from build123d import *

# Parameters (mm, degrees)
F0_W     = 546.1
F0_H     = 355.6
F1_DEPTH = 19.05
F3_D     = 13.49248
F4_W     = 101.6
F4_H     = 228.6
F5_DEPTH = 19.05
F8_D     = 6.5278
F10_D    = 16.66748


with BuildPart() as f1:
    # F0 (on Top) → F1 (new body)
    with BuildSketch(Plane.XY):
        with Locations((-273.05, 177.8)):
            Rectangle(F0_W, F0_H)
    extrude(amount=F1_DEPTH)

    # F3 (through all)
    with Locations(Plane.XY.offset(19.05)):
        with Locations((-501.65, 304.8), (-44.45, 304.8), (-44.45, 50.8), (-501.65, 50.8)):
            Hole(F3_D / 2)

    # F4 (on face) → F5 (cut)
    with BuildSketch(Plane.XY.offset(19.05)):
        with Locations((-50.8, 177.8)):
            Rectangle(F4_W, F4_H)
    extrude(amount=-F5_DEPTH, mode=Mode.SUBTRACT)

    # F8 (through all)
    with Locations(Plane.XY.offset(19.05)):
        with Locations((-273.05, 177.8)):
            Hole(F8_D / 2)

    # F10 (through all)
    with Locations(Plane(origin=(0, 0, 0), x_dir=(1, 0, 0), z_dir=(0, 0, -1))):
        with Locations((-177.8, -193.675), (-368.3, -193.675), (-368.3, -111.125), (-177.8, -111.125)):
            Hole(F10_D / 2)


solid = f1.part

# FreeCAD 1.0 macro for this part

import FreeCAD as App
import Part
import Sketcher
Q = App.Units.Quantity

doc = App.newDocument("Part")
body = doc.addObject("PartDesign::Body", "Body")

# Sketch on XY plane
sketch1 = body.newObject("Sketcher::SketchObject", "Sketch")
sketch1.AttachmentSupport = (doc.getObject("XY_Plane"), [""])
sketch1.MapMode = "FlatFace"
sketch1.addGeometry([
    Part.LineSegment(App.Vector(-546, 356, 0), App.Vector(-546, 0, 0)),
    Part.LineSegment(App.Vector(-546, 0, 0), App.Vector(0, 0, 0)),
    Part.LineSegment(App.Vector(0, 0, 0), App.Vector(0, 356, 0)),
    Part.LineSegment(App.Vector(0, 356, 0), App.Vector(-546, 356, 0)),
], False)
sketch1.addConstraint([
    Sketcher.Constraint("Coincident", 0, 2, 1, 1),
    Sketcher.Constraint("Coincident", 1, 2, 2, 1),
    Sketcher.Constraint("Coincident", 2, 2, 3, 1),
    Sketcher.Constraint("Coincident", 3, 2, 0, 1),
    Sketcher.Constraint("Vertical", 0),
    Sketcher.Constraint("Horizontal", 1),
    Sketcher.Constraint("Vertical", 2),
    Sketcher.Constraint("Horizontal", 3),
    Sketcher.Constraint("Coincident", 1, 2, -1, 1),
    Sketcher.Constraint("DistanceY", 0, 2, 0, 1, Q("14 in")),
    Sketcher.Constraint("DistanceX", 1, 1, 1, 2, Q("21.5 in")),
])
pad1 = body.newObject("PartDesign::Pad", "Pad")
pad1.Profile = sketch1
pad1.Length = Q("0.75 in")

# Sketch on XY plane
sketch2 = body.newObject("Sketcher::SketchObject", "Sketch001")
sketch2.AttachmentSupport = (doc.getObject("XY_Plane"), [""])
sketch2.MapMode = "FlatFace"
sketch2.AttachmentOffset = App.Placement(App.Vector(0, 0, 0.75 * 25.4), App.Rotation())
sketch2.addGeometry([
    Part.Circle(App.Vector(-502, 305, 0), App.Vector(0, 0, 1), 7),
    Part.Circle(App.Vector(-44, 305, 0), App.Vector(0, 0, 1), 7),
    Part.Circle(App.Vector(-44, 51, 0), App.Vector(0, 0, 1), 7),
    Part.Circle(App.Vector(-502, 51, 0), App.Vector(0, 0, 1), 7),
], False)
sketch2.addConstraint([
    Sketcher.Constraint("Equal", 0, 1),
    Sketcher.Constraint("Equal", 1, 2),
    Sketcher.Constraint("Equal", 2, 3),
    Sketcher.Constraint("Horizontal", 0, 3, 1, 3),
    Sketcher.Constraint("Horizontal", 2, 3, 3, 3),
    Sketcher.Constraint("Vertical", 1, 3, 2, 3),
    Sketcher.Constraint("Vertical", 0, 3, 3, 3),
    Sketcher.Constraint("DistanceY", -1, 1, 0, 3, Q("12 in")),
    Sketcher.Constraint("DistanceY", -1, 1, 2, 3, Q("2 in")),
    Sketcher.Constraint("DistanceX", 0, 3, 1, 3, Q("18 in")),
    Sketcher.Constraint("Diameter", 0, Q("0.5312 in")),
    Sketcher.Constraint("DistanceX", 0, 3, -1, 1, Q("19.75 in")),
])
doc.recompute()
hole = body.newObject("PartDesign::Hole", "Hole")
hole.Profile = sketch2
hole.ThreadType = "None"
hole.Diameter = Q("0.5312 in")
hole.DepthType = "ThroughAll"

# Sketch on XY plane
sketch3 = body.newObject("Sketcher::SketchObject", "Sketch002")
sketch3.AttachmentSupport = (doc.getObject("XY_Plane"), [""])
sketch3.MapMode = "FlatFace"
sketch3.AttachmentOffset = App.Placement(App.Vector(0, 0, 0.75 * 25.4), App.Rotation())
sketch3.addGeometry([
    Part.LineSegment(App.Vector(-102, 292, 0), App.Vector(-102, 64, 0)),
    Part.LineSegment(App.Vector(-102, 64, 0), App.Vector(0, 64, 0)),
    Part.LineSegment(App.Vector(0, 64, 0), App.Vector(0, 292, 0)),
    Part.LineSegment(App.Vector(0, 292, 0), App.Vector(-102, 292, 0)),
], False)
sketch3.addConstraint([
    Sketcher.Constraint("Coincident", 0, 2, 1, 1),
    Sketcher.Constraint("Coincident", 1, 2, 2, 1),
    Sketcher.Constraint("Coincident", 2, 2, 3, 1),
    Sketcher.Constraint("Coincident", 3, 2, 0, 1),
    Sketcher.Constraint("Vertical", 0),
    Sketcher.Constraint("Horizontal", 1),
    Sketcher.Constraint("Vertical", 2),
    Sketcher.Constraint("Horizontal", 3),
    Sketcher.Constraint("PointOnObject", 1, 2, -2),
    Sketcher.Constraint("DistanceX", 1, 1, 1, 2, Q("4 in")),
    Sketcher.Constraint("DistanceY", 0, 2, 0, 1, Q("9 in")),
    Sketcher.Constraint("DistanceY", -1, 1, 0, 2, Q("2.5 in")),
])
pocket1 = body.newObject("PartDesign::Pocket", "Pocket")
pocket1.Profile = sketch3
pocket1.Length = Q("0.75 in")

# Sketch on XY plane
sketch4 = body.newObject("Sketcher::SketchObject", "Sketch003")
sketch4.AttachmentSupport = (doc.getObject("XY_Plane"), [""])
sketch4.MapMode = "FlatFace"
sketch4.AttachmentOffset = App.Placement(App.Vector(0, 0, 0.75 * 25.4), App.Rotation())
sketch4.addGeometry(Part.Circle(App.Vector(-273.1, 177.8, 0), App.Vector(0, 0, 1), 3.3), False)
sketch4.addConstraint([
    Sketcher.Constraint("Diameter", 0, Q("0.257 in")),
    Sketcher.Constraint("DistanceY", -1, 1, 0, 3, Q("7 in")),
    Sketcher.Constraint("DistanceX", 0, 3, -1, 1, Q("10.75 in")),
])
doc.recompute()
hole2 = body.newObject("PartDesign::Hole", "Hole001")
hole2.Profile = sketch4
hole2.ThreadType = "None"
hole2.Diameter = Q("0.257 in")
hole2.DepthType = "ThroughAll"

# Sketch on XY plane
sketch5 = body.newObject("Sketcher::SketchObject", "Sketch004")
sketch5.AttachmentSupport = (doc.getObject("XY_Plane"), [""])
sketch5.MapMode = "FlatFace"
sketch5.addGeometry([
    Part.Circle(App.Vector(-178, 194, 0), App.Vector(0, 0, 1), 8),
    Part.Circle(App.Vector(-368, 194, 0), App.Vector(0, 0, 1), 8),
    Part.Circle(App.Vector(-368, 111, 0), App.Vector(0, 0, 1), 8),
    Part.Circle(App.Vector(-178, 111, 0), App.Vector(0, 0, 1), 8),
], False)
sketch5.addConstraint([
    Sketcher.Constraint("Equal", 0, 1),
    Sketcher.Constraint("Equal", 1, 2),
    Sketcher.Constraint("Equal", 2, 3),
    Sketcher.Constraint("Horizontal", 0, 3, 1, 3),
    Sketcher.Constraint("Horizontal", 2, 3, 3, 3),
    Sketcher.Constraint("Vertical", 1, 3, 2, 3),
    Sketcher.Constraint("Vertical", 0, 3, 3, 3),
    Sketcher.Constraint("DistanceX", 0, 3, -1, 1, Q("7 in")),
    Sketcher.Constraint("Diameter", 0, Q("0.6562 in")),
    Sketcher.Constraint("DistanceX", 1, 3, -1, 1, Q("14.5 in")),
    Sketcher.Constraint("DistanceY", 2, 3, 1, 3, Q("3.25 in")),
    Sketcher.Constraint("DistanceY", -1, 1, 0, 3, Q("7.625 in")),
])
doc.recompute()
hole3 = body.newObject("PartDesign::Hole", "Hole002")
hole3.Profile = sketch5
hole3.ThreadType = "None"
hole3.Diameter = Q("0.6562 in")
hole3.DepthType = "ThroughAll"
hole3.Reversed = True

doc.recompute()
